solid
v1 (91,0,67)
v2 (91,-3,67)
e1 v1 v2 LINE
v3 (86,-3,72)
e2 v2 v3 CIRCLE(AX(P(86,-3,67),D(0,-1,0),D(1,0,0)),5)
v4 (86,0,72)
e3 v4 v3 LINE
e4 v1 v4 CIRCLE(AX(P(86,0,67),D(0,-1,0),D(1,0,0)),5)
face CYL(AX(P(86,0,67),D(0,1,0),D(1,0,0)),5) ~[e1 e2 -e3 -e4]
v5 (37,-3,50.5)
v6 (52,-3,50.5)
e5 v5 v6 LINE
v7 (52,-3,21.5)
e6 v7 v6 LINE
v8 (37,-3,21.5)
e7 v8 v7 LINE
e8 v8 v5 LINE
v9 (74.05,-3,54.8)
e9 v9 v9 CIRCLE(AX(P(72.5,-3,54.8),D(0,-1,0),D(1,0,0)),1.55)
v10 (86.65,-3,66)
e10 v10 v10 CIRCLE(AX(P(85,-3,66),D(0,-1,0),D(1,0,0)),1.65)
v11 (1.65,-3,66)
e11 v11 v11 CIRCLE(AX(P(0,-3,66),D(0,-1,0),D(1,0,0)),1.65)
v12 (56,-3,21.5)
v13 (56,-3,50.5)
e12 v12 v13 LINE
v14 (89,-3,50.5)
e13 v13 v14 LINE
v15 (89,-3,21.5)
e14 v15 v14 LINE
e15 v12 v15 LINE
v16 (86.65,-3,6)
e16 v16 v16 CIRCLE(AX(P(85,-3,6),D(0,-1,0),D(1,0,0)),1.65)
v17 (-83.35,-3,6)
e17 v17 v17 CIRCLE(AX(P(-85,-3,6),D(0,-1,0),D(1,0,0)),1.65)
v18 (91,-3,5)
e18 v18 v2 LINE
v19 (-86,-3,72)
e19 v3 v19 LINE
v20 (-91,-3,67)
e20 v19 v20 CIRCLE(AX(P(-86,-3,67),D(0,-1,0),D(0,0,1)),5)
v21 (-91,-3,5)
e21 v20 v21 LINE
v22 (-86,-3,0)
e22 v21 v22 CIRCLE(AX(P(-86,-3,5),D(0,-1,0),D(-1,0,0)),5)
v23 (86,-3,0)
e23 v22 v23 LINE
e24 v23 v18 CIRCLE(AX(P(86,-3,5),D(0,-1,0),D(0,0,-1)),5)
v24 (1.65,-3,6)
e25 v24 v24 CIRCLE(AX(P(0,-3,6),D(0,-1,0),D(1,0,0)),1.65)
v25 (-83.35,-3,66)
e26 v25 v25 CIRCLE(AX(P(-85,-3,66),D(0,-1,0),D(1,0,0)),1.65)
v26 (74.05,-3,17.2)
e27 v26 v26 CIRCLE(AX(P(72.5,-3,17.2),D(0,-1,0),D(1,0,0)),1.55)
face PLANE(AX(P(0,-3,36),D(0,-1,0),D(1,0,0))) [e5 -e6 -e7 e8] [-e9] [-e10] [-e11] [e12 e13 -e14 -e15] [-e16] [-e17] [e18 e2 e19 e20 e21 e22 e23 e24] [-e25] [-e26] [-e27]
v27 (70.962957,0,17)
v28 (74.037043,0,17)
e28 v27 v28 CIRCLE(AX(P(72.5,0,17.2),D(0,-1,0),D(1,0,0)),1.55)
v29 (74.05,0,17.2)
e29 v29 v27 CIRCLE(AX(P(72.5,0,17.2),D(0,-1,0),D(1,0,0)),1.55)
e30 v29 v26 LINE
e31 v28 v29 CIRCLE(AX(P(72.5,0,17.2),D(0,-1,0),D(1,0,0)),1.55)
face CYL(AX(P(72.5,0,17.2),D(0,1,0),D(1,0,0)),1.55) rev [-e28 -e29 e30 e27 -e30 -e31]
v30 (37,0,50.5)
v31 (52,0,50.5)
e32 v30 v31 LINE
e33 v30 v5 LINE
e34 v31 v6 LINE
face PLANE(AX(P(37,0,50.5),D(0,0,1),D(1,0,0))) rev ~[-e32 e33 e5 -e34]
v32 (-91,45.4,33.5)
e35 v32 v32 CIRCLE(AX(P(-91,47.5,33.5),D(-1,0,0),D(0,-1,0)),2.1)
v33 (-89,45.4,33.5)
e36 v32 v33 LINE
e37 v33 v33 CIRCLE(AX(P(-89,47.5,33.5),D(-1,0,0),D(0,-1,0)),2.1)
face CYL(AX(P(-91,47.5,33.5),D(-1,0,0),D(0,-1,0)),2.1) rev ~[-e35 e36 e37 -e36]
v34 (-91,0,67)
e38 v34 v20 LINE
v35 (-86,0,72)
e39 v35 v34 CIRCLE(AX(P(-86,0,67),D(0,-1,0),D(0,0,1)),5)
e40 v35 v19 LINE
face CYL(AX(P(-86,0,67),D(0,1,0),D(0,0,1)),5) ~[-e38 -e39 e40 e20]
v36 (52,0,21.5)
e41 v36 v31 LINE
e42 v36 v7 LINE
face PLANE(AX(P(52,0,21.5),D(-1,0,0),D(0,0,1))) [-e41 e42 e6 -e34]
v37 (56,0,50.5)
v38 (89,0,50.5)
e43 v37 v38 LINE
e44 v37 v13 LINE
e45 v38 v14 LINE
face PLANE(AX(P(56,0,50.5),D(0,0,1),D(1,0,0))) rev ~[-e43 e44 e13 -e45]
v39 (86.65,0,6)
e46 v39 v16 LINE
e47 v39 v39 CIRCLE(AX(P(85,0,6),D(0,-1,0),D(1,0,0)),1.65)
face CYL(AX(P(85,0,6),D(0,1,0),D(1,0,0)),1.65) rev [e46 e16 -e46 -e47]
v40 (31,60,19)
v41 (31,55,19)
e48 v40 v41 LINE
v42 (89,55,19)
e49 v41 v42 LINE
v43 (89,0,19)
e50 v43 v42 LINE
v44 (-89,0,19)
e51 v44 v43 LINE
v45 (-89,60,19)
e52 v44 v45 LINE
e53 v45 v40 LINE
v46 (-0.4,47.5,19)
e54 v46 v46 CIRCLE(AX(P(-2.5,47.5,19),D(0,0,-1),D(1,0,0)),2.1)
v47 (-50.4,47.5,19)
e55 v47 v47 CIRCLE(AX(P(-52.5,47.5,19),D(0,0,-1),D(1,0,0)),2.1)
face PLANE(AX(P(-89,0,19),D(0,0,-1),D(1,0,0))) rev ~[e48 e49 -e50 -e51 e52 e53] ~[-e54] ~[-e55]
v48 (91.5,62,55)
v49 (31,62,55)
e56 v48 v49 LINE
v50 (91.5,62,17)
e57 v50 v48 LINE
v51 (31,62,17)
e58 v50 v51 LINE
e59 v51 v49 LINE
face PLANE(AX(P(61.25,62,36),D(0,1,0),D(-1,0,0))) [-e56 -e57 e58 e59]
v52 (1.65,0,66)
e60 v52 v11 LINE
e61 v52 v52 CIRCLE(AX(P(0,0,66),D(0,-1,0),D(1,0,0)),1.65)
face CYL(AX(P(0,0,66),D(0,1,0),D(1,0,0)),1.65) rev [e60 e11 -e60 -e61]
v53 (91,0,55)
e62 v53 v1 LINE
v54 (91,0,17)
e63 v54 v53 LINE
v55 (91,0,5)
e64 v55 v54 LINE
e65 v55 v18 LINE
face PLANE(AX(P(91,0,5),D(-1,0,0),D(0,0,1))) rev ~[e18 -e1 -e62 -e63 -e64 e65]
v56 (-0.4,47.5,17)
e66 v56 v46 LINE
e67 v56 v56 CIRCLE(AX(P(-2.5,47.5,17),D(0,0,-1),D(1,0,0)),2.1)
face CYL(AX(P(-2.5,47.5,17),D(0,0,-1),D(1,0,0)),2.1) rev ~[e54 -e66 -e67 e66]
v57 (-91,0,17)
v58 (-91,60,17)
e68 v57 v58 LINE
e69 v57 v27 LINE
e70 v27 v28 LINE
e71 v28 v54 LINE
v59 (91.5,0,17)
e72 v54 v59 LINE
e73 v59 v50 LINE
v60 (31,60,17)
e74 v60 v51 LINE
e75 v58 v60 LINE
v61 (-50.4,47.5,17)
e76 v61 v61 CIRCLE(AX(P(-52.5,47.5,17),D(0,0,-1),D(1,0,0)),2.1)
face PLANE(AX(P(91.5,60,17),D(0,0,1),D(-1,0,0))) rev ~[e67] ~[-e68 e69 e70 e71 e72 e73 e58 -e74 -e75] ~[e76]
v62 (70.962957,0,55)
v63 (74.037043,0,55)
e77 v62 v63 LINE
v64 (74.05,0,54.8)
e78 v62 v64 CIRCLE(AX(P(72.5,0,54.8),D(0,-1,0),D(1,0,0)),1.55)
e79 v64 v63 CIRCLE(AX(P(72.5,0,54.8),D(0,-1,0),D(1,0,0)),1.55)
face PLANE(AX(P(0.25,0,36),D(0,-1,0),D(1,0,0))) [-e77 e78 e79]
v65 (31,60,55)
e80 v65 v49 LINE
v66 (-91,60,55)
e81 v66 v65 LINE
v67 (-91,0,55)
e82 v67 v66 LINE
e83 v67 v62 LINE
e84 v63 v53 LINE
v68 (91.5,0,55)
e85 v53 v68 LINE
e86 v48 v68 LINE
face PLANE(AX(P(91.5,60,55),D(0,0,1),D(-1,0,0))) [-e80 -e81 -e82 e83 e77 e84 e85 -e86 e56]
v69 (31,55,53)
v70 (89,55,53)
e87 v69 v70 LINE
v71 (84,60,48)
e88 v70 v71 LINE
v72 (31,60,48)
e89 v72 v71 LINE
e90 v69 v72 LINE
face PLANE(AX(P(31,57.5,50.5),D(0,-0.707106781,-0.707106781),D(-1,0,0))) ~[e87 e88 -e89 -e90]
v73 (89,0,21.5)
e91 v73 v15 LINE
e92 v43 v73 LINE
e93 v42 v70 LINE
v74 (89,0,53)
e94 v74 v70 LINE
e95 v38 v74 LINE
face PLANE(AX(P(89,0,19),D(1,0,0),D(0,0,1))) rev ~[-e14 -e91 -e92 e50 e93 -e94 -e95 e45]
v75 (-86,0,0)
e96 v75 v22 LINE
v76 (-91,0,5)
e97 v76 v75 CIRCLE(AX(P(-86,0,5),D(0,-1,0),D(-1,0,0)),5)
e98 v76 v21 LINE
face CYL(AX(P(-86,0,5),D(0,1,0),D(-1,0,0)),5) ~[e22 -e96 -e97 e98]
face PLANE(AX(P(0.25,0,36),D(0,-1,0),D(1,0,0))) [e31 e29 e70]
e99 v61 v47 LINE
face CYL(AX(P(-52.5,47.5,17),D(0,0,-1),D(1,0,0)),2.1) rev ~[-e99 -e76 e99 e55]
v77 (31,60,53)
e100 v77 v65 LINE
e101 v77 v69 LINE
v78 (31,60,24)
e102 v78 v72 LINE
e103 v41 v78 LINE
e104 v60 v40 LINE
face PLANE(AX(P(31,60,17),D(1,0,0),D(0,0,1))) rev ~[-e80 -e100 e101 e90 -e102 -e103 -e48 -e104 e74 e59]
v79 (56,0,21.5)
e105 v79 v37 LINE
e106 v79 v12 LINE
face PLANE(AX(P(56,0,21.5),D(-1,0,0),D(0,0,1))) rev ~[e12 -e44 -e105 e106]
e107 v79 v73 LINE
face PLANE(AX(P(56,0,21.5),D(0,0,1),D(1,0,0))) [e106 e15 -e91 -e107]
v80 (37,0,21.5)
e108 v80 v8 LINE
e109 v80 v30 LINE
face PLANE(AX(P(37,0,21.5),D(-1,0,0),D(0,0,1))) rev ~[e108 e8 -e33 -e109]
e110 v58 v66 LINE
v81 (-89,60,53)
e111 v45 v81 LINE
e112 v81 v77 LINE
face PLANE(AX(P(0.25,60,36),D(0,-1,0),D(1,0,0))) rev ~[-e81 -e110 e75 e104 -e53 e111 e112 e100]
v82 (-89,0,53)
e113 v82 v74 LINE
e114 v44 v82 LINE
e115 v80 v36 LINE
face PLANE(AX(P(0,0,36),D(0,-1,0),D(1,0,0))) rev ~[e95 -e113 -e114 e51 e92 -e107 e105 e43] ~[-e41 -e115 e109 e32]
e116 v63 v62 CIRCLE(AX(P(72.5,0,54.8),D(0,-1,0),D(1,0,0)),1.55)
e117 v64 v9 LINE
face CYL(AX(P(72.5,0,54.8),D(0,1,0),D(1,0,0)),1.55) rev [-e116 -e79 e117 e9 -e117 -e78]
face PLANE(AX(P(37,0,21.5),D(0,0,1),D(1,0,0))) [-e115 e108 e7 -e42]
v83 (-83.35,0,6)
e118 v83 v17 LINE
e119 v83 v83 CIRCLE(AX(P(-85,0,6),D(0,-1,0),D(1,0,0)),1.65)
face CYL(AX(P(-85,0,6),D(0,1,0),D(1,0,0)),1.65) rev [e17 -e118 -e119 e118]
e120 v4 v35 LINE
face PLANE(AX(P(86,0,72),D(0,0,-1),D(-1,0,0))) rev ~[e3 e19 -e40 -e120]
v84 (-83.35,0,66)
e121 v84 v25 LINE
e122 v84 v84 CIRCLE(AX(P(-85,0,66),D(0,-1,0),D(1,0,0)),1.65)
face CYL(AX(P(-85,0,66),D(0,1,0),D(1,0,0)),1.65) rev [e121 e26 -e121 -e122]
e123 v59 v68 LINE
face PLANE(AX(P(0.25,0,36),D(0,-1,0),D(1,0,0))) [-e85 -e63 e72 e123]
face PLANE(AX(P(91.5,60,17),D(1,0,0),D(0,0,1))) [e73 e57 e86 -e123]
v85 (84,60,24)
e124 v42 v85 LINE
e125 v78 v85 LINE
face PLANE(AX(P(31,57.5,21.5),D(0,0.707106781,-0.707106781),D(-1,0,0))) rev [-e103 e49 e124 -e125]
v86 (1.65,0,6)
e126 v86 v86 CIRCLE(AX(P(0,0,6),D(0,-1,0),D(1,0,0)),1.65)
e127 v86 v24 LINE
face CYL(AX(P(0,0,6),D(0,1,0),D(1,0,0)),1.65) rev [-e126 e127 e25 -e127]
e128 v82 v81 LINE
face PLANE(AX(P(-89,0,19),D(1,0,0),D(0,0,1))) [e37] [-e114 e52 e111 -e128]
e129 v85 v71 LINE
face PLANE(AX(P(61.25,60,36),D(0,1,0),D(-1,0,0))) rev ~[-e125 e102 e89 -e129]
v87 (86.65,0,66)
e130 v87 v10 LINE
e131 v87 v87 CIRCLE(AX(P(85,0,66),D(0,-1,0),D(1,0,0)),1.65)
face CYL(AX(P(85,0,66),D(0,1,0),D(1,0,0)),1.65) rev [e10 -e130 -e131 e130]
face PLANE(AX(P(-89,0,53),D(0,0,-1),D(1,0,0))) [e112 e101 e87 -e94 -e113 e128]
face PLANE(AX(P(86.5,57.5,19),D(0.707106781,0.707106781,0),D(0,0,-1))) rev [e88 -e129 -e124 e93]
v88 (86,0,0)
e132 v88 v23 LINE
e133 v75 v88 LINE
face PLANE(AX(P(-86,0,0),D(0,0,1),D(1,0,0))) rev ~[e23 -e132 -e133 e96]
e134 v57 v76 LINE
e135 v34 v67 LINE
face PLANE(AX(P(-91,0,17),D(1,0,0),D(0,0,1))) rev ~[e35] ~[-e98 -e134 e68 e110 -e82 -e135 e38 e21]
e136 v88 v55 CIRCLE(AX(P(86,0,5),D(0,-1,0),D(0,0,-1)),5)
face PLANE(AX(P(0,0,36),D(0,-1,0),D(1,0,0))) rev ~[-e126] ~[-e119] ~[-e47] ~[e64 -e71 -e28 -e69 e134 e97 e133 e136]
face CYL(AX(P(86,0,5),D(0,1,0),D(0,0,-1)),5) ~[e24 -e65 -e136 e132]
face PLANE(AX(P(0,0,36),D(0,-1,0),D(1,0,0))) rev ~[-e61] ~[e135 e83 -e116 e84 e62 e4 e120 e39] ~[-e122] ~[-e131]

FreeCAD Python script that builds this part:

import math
import FreeCAD as App
import Part
import Sketcher

V = App.Vector


def edges_at(feature, points):
    """Names of the edges that pass closest to the given points."""
    edges = feature.Shape.Edges
    near = lambda p: min(range(len(edges)), key=lambda i: edges[i].distToShape(Part.Vertex(*p))[0])
    return sorted({f"Edge{near(p) + 1}" for p in points})

doc = App.newDocument("Part")
body = doc.addObject("PartDesign::Body", "Body")

# Sketch on XZ plane
sketch1 = body.newObject("Sketcher::SketchObject", "Sketch")
sketch1.AttachmentSupport = (doc.getObject("XZ_Plane"), [""])
sketch1.MapMode = "FlatFace"
sketch1.addGeometry([
    Part.LineSegment(V(86, 72, 0), V(-86, 72, 0)),  # 0
    Part.ArcOfCircle(Part.Circle(V(-86, 67, 0), V(0, 0, 1), 5), math.radians(90), math.radians(180)),  # 1
    Part.LineSegment(V(-91, 67, 0), V(-91, 5, 0)),  # 2
    Part.ArcOfCircle(Part.Circle(V(-86, 5, 0), V(0, 0, 1), 5), math.radians(180), math.radians(270)),  # 3
    Part.LineSegment(V(-86, 0, 0), V(86, 0, 0)),  # 4
    Part.ArcOfCircle(Part.Circle(V(86, 5, 0), V(0, 0, 1), 5), math.radians(-90), math.radians(0)),  # 5
    Part.LineSegment(V(91, 5, 0), V(91, 67, 0)),  # 6
    Part.ArcOfCircle(Part.Circle(V(86, 67, 0), V(0, 0, 1), 5), math.radians(0), math.radians(90)),  # 7
    Part.Circle(V(-85, 6, 0), V(0, 0, 1), 1.6),  # 8
    Part.Circle(V(0, 6, 0), V(0, 0, 1), 1.6),  # 9
    Part.Circle(V(85, 6, 0), V(0, 0, 1), 1.6),  # 10
    Part.Circle(V(72.5, 17.2, 0), V(0, 0, 1), 1.6),  # 11
    Part.Circle(V(-85, 66, 0), V(0, 0, 1), 1.6),  # 12
    Part.Circle(V(0, 66, 0), V(0, 0, 1), 1.6),  # 13
    Part.LineSegment(V(52, 21.5, 0), V(37, 21.5, 0)),  # 14
    Part.LineSegment(V(37, 21.5, 0), V(37, 50.5, 0)),  # 15
    Part.LineSegment(V(37, 50.5, 0), V(52, 50.5, 0)),  # 16
    Part.LineSegment(V(52, 50.5, 0), V(52, 21.5, 0)),  # 17
    Part.LineSegment(V(89, 21.5, 0), V(56, 21.5, 0)),  # 18
    Part.LineSegment(V(56, 21.5, 0), V(56, 50.5, 0)),  # 19
    Part.LineSegment(V(56, 50.5, 0), V(89, 50.5, 0)),  # 20
    Part.LineSegment(V(89, 50.5, 0), V(89, 21.5, 0)),  # 21
    Part.Circle(V(72.5, 54.8, 0), V(0, 0, 1), 1.6),  # 22
    Part.Circle(V(85, 66, 0), V(0, 0, 1), 1.6),  # 23
], False)
sketch1.addConstraint([
    Sketcher.Constraint("Tangent", 0, 2, 1, 1),
    Sketcher.Constraint("Tangent", 1, 2, 2, 1),
    Sketcher.Constraint("Tangent", 2, 2, 3, 1),
    Sketcher.Constraint("Tangent", 3, 2, 4, 1),
    Sketcher.Constraint("Tangent", 4, 2, 5, 1),
    Sketcher.Constraint("Tangent", 5, 2, 6, 1),
    Sketcher.Constraint("Tangent", 6, 2, 7, 1),
    Sketcher.Constraint("Tangent", 7, 2, 0, 1),
    Sketcher.Constraint("Coincident", 14, 2, 15, 1),
    Sketcher.Constraint("Coincident", 15, 2, 16, 1),
    Sketcher.Constraint("Coincident", 16, 2, 17, 1),
    Sketcher.Constraint("Coincident", 17, 2, 14, 1),
    Sketcher.Constraint("Coincident", 18, 2, 19, 1),
    Sketcher.Constraint("Coincident", 19, 2, 20, 1),
    Sketcher.Constraint("Coincident", 20, 2, 21, 1),
    Sketcher.Constraint("Coincident", 21, 2, 18, 1),
    Sketcher.Constraint("Horizontal", 0),
    Sketcher.Constraint("Vertical", 2),
    Sketcher.Constraint("Horizontal", 4),
    Sketcher.Constraint("Vertical", 6),
    Sketcher.Constraint("Horizontal", 14),
    Sketcher.Constraint("Vertical", 15),
    Sketcher.Constraint("Horizontal", 16),
    Sketcher.Constraint("Vertical", 17),
    Sketcher.Constraint("Horizontal", 18),
    Sketcher.Constraint("Vertical", 19),
    Sketcher.Constraint("Horizontal", 20),
    Sketcher.Constraint("Vertical", 21),
    Sketcher.Constraint("Equal", 1, 3),
    Sketcher.Constraint("Equal", 3, 5),
    Sketcher.Constraint("Equal", 5, 7),
    Sketcher.Constraint("Equal", 8, 9),
    Sketcher.Constraint("Equal", 9, 10),
    Sketcher.Constraint("Equal", 10, 12),
    Sketcher.Constraint("Equal", 12, 13),
    Sketcher.Constraint("Equal", 11, 22),
    Sketcher.Constraint("Equal", 13, 23),
    Sketcher.Constraint("Symmetric", 3, 2, 4, 2, -1, 1),
    Sketcher.Constraint("Symmetric", 8, 3, 10, 3, -2),
    Sketcher.Constraint("Symmetric", 12, 3, 23, 3, -2),
    Sketcher.Constraint("PointOnObject", 9, 3, -2),
    Sketcher.Constraint("PointOnObject", 13, 3, -2),
    Sketcher.Constraint("Horizontal", 8, 3, 9, 3),
    Sketcher.Constraint("Horizontal", 12, 3, 13, 3),
    Sketcher.Constraint("Horizontal", 17, 2, 18, 2),
    Sketcher.Constraint("Horizontal", 16, 2, 19, 2),
    Sketcher.Constraint("Vertical", 8, 3, 12, 3),
    Sketcher.Constraint("Vertical", 11, 3, 22, 3),
    Sketcher.Constraint("Radius", 1, 5.0),
    Sketcher.Constraint("Diameter", 8, 3.3),
    Sketcher.Constraint("Diameter", 11, 3.1),
    Sketcher.Constraint("DistanceX", 0, 2, 0, 1, 172.0),
    Sketcher.Constraint("DistanceX", 14, 2, 14, 1, 15.0),
    Sketcher.Constraint("DistanceX", 18, 2, 18, 1, 33.0),
    Sketcher.Constraint("DistanceY", 2, 2, 2, 1, 62.0),
    Sketcher.Constraint("DistanceY", 15, 1, 15, 2, 29.0),
    Sketcher.Constraint("DistanceX", 8, 3, -1, 1, 85.0),
    Sketcher.Constraint("DistanceY", -1, 1, 8, 3, 6.0),
    Sketcher.Constraint("DistanceY", -1, 1, 12, 3, 66.0),
    Sketcher.Constraint("DistanceX", -1, 1, 14, 2, 37.0),
    Sketcher.Constraint("DistanceX", -1, 1, 18, 2, 56.0),
    Sketcher.Constraint("DistanceX", -1, 1, 11, 3, 72.5),
    Sketcher.Constraint("DistanceY", -1, 1, 11, 3, 17.2),
    Sketcher.Constraint("DistanceY", -1, 1, 22, 3, 54.8),
    Sketcher.Constraint("DistanceY", -1, 1, 14, 2, 21.5),
])
pad1 = body.newObject("PartDesign::Pad", "Pad")
pad1.Profile = sketch1
pad1.Length = 3

# Sketch on XZ plane
sketch2 = body.newObject("Sketcher::SketchObject", "Sketch001")
sketch2.AttachmentSupport = (doc.getObject("XZ_Plane"), [""])
sketch2.MapMode = "FlatFace"
sketch2.addGeometry([
    Part.LineSegment(V(-91, 55, 0), V(-91, 17, 0)),  # 0
    Part.LineSegment(V(-91, 17, 0), V(92, 17, 0)),  # 1
    Part.LineSegment(V(92, 17, 0), V(92, 55, 0)),  # 2
    Part.LineSegment(V(92, 55, 0), V(-91, 55, 0)),  # 3
    Part.LineSegment(V(89, 19, 0), V(-89, 19, 0)),  # 4
    Part.LineSegment(V(-89, 19, 0), V(-89, 53, 0)),  # 5
    Part.LineSegment(V(-89, 53, 0), V(89, 53, 0)),  # 6
    Part.LineSegment(V(89, 53, 0), V(89, 19, 0)),  # 7
], False)
sketch2.addConstraint([
    Sketcher.Constraint("Coincident", 0, 2, 1, 1),
    Sketcher.Constraint("Coincident", 1, 2, 2, 1),
    Sketcher.Constraint("Coincident", 2, 2, 3, 1),
    Sketcher.Constraint("Coincident", 3, 2, 0, 1),
    Sketcher.Constraint("Coincident", 4, 2, 5, 1),
    Sketcher.Constraint("Coincident", 5, 2, 6, 1),
    Sketcher.Constraint("Coincident", 6, 2, 7, 1),
    Sketcher.Constraint("Coincident", 7, 2, 4, 1),
    Sketcher.Constraint("Vertical", 0),
    Sketcher.Constraint("Horizontal", 1),
    Sketcher.Constraint("Vertical", 2),
    Sketcher.Constraint("Horizontal", 3),
    Sketcher.Constraint("Horizontal", 4),
    Sketcher.Constraint("Vertical", 5),
    Sketcher.Constraint("Horizontal", 6),
    Sketcher.Constraint("Vertical", 7),
    Sketcher.Constraint("DistanceX", 4, 2, 4, 1, 178.0),
    Sketcher.Constraint("DistanceY", 0, 2, 0, 1, 38.0),
    Sketcher.Constraint("DistanceY", 5, 1, 5, 2, 34.0),
    Sketcher.Constraint("DistanceX", 1, 1, 1, 2, 182.5),
    Sketcher.Constraint("DistanceX", 0, 2, -1, 1, 91.0),
    Sketcher.Constraint("DistanceY", -1, 1, 0, 2, 17.0),
    Sketcher.Constraint("DistanceX", 4, 2, -1, 1, 89.0),
    Sketcher.Constraint("DistanceY", -1, 1, 4, 2, 19.0),
])
pad2 = body.newObject("PartDesign::Pad", "Pad001")
pad2.Profile = sketch2
pad2.Length = 60
pad2.Reversed = True

# Sketch on XY plane
sketch3 = body.newObject("Sketcher::SketchObject", "Sketch002")
sketch3.AttachmentSupport = (doc.getObject("XY_Plane"), [""])
sketch3.MapMode = "FlatFace"
sketch3.AttachmentOffset = App.Placement(V(0, 0, 17), App.Rotation())
sketch3.addGeometry([
    Part.Circle(V(-52.5, 47.5, 0), V(0, 0, 1), 2.1),
    Part.Circle(V(-2.5, 47.5, 0), V(0, 0, 1), 2.1),
], False)
sketch3.addConstraint([
    Sketcher.Constraint("Equal", 0, 1),
    Sketcher.Constraint("Horizontal", 0, 3, 1, 3),
    Sketcher.Constraint("Diameter", 0, 4.2),
    Sketcher.Constraint("DistanceX", 0, 3, 1, 3, 50.0),
    Sketcher.Constraint("DistanceX", 0, 3, -1, 1, 52.5),
    Sketcher.Constraint("DistanceY", -1, 1, 0, 3, 47.5),
])
pocket1 = body.newObject("PartDesign::Pocket", "Pocket")
pocket1.Profile = sketch3
pocket1.Length = 25
pocket1.Reversed = True

# Sketch on YZ plane
sketch4 = body.newObject("Sketcher::SketchObject", "Sketch003")
sketch4.AttachmentSupport = (doc.getObject("YZ_Plane"), [""])
sketch4.MapMode = "FlatFace"
sketch4.AttachmentOffset = App.Placement(V(0, 0, -91), App.Rotation())
sketch4.addGeometry(Part.Circle(V(47.5, 33.5, 0), V(0, 0, 1), 2.1), False)
sketch4.addConstraint([
    Sketcher.Constraint("Diameter", 0, 4.2),
    Sketcher.Constraint("DistanceX", -1, 1, 0, 3, 47.5),
    Sketcher.Constraint("DistanceY", -1, 1, 0, 3, 33.5),
])
pocket2 = body.newObject("PartDesign::Pocket", "Pocket001")
pocket2.Profile = sketch4
pocket2.Length = 25
pocket2.Reversed = True

# Sketch on XZ plane
sketch5 = body.newObject("Sketcher::SketchObject", "Sketch004")
sketch5.AttachmentSupport = (doc.getObject("XZ_Plane"), [""])
sketch5.MapMode = "FlatFace"
sketch5.AttachmentOffset = App.Placement(V(0, 0, -60), App.Rotation())
sketch5.addGeometry([
    Part.LineSegment(V(92, 55, 0), V(92, 17, 0)),
    Part.LineSegment(V(92, 17, 0), V(31, 17, 0)),
    Part.LineSegment(V(31, 17, 0), V(31, 55, 0)),
    Part.LineSegment(V(31, 55, 0), V(92, 55, 0)),
], False)
sketch5.addConstraint([
    Sketcher.Constraint("Coincident", 0, 2, 1, 1),
    Sketcher.Constraint("Coincident", 1, 2, 2, 1),
    Sketcher.Constraint("Coincident", 2, 2, 3, 1),
    Sketcher.Constraint("Coincident", 3, 2, 0, 1),
    Sketcher.Constraint("Vertical", 0),
    Sketcher.Constraint("Horizontal", 1),
    Sketcher.Constraint("Vertical", 2),
    Sketcher.Constraint("Horizontal", 3),
    Sketcher.Constraint("DistanceY", 0, 2, 0, 1, 38.0),
    Sketcher.Constraint("DistanceX", 1, 2, 1, 1, 60.5),
    Sketcher.Constraint("DistanceY", -1, 1, 0, 2, 17.0),
    Sketcher.Constraint("DistanceX", -1, 1, 1, 2, 31.0),
])
pad3 = body.newObject("PartDesign::Pad", "Pad002")
pad3.Profile = sketch5
pad3.Length = 2
pad3.Reversed = True
doc.recompute()

chamfer = body.newObject("PartDesign::Chamfer", "Chamfer")
chamfer.Base = (pad3, edges_at(pad3, [(89, 60, 36), (60, 60, 53), (60, 60, 19)]))
chamfer.Size = 5

doc.recompute()
